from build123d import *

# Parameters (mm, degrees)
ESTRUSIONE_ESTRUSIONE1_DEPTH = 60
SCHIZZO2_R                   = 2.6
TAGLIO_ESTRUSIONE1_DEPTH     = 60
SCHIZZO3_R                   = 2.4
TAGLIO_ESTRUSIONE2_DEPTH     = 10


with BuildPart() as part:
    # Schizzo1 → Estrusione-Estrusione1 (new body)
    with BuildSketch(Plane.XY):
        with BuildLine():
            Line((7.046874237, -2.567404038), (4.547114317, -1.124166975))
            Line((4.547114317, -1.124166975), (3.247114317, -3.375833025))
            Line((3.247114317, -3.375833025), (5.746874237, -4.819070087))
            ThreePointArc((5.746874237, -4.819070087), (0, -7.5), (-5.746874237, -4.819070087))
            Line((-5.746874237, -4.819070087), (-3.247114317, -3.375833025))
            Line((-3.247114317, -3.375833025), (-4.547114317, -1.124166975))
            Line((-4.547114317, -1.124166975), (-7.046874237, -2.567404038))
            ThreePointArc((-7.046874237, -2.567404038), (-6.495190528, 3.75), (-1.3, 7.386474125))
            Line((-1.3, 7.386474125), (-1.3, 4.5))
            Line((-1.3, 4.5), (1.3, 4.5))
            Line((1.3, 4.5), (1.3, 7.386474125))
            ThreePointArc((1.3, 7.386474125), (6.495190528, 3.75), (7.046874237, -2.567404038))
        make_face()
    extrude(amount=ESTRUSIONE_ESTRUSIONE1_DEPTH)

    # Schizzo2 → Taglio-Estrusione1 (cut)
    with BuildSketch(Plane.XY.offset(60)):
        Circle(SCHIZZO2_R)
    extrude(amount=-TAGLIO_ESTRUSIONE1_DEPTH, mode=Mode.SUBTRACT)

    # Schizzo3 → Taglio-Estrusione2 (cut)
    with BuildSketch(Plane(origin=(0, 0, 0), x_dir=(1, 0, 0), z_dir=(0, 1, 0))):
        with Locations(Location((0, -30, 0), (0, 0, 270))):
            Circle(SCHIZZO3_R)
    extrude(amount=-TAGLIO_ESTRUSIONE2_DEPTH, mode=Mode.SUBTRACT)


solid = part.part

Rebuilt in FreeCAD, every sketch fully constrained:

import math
import FreeCAD as App
import Part
import Sketcher

V = App.Vector
Q = App.Units.Quantity

doc = App.newDocument("Part")
params = doc.addObject("Spreadsheet::Sheet", "Params")
for row, (alias, value) in enumerate([
    ("sketch1_radius", "7.5 mm"),
    ("sketch1_width", "2.6 mm"),
    ("sketch1_length", "2.6 mm"),
    ("pad1_length", "60 mm"),
    ("sketch2_diameter", "5.2 mm"),
    ("pocket1_length", "60 mm"),
    ("sketch3_diameter", "4.8 mm"),
    ("pocket2_length", "10 mm"),
], start=1):
    params.set(f"A{row}", alias)
    params.set(f"B{row}", "=" + value)
    params.setAlias(f"B{row}", alias)

body = doc.addObject("PartDesign::Body", "Body")

# Sketch on XY plane
sketch1 = doc.addObject("Sketcher::SketchObject", "Sketch")
body.addObject(sketch1)
sketch1.AttachmentSupport = (doc.XY_Plane, [""])
sketch1.MapMode = "FlatFace"
sketch1.addGeometry(Part.LineSegment(V(4.547114, -1.124167, 0), V(7.046874, -2.567404, 0)), False)
sketch1.addGeometry(Part.ArcOfCircle(Part.Circle(V(0, 0, 0), V(0, 0, 1), 7.5), math.radians(-20.018317), math.radians(80.018317)), False)
sketch1.addGeometry(Part.LineSegment(V(1.3, 7.386474, 0), V(1.3, 4.5, 0)), False)
sketch1.addGeometry(Part.LineSegment(V(1.3, 4.5, 0), V(-1.3, 4.5, 0)), False)
sketch1.addGeometry(Part.LineSegment(V(-1.3, 4.5, 0), V(-1.3, 7.386474, 0)), False)
sketch1.addGeometry(Part.ArcOfCircle(Part.Circle(V(0, 0, 0), V(0, 0, 1), 7.5), math.radians(99.981683), math.radians(200.018317)), False)
sketch1.addGeometry(Part.LineSegment(V(-7.046874, -2.567404, 0), V(-4.547114, -1.124167, 0)), False)
sketch1.addGeometry(Part.LineSegment(V(-4.547114, -1.124167, 0), V(-3.247114, -3.375833, 0)), False)
sketch1.addGeometry(Part.LineSegment(V(-3.247114, -3.375833, 0), V(-5.746874, -4.81907, 0)), False)
sketch1.addGeometry(Part.ArcOfCircle(Part.Circle(V(0, 0, 0), V(0, 0, 1), 7.5), math.radians(-140.018317), math.radians(-39.981683)), False)
sketch1.addGeometry(Part.LineSegment(V(5.746874, -4.81907, 0), V(3.247114, -3.375833, 0)), False)
sketch1.addGeometry(Part.LineSegment(V(3.247114, -3.375833, 0), V(4.547114, -1.124167, 0)), False)
sketch1.addConstraint(Sketcher.Constraint("Coincident", 0, 2, 1, 1))
sketch1.addConstraint(Sketcher.Constraint("Coincident", 1, 2, 2, 1))
sketch1.addConstraint(Sketcher.Constraint("Coincident", 2, 2, 3, 1))
sketch1.addConstraint(Sketcher.Constraint("Coincident", 3, 2, 4, 1))
sketch1.addConstraint(Sketcher.Constraint("Coincident", 4, 2, 5, 1))
sketch1.addConstraint(Sketcher.Constraint("Coincident", 5, 2, 6, 1))
sketch1.addConstraint(Sketcher.Constraint("Coincident", 6, 2, 7, 1))
sketch1.addConstraint(Sketcher.Constraint("Coincident", 7, 2, 8, 1))
sketch1.addConstraint(Sketcher.Constraint("Coincident", 8, 2, 9, 1))
sketch1.addConstraint(Sketcher.Constraint("Coincident", 9, 2, 10, 1))
sketch1.addConstraint(Sketcher.Constraint("Coincident", 10, 2, 11, 1))
sketch1.addConstraint(Sketcher.Constraint("Coincident", 11, 2, 0, 1))
sketch1.addConstraint(Sketcher.Constraint("Vertical", 2))
sketch1.addConstraint(Sketcher.Constraint("Horizontal", 3))
sketch1.addConstraint(Sketcher.Constraint("Vertical", 4))
sketch1.addConstraint(Sketcher.Constraint("Coincident", 1, 3, -1, 1))
sketch1.addConstraint(Sketcher.Constraint("Coincident", 5, 3, -1, 1))
sketch1.addConstraint(Sketcher.Constraint("Coincident", 9, 3, -1, 1))
sketch1.addConstraint(Sketcher.Constraint("Equal", 1, 5))
sketch1.addConstraint(Sketcher.Constraint("Equal", 5, 9))
sketch1.addConstraint(Sketcher.Constraint("Symmetric", 7, 2, 10, 2, -2))
sketch1.addConstraint(Sketcher.Constraint("Symmetric", 6, 2, 11, 2, -2))
sketch1.addConstraint(Sketcher.Constraint("Perpendicular", 6, 7))
sketch1.addConstraint(Sketcher.Constraint("Perpendicular", 7, 8))
sketch1.addConstraint(Sketcher.Constraint("Parallel", 0, 10))
sketch1.addConstraint(Sketcher.Constraint("Perpendicular", 10, 11))
sketch1.addConstraint(Sketcher.Constraint("Horizontal", 1, 2, 4, 2))
sketch1.addConstraint(Sketcher.Constraint("Equal", 6, 8))
sketch1.addConstraint(Sketcher.Constraint("Radius", 1, Q("7.5 mm")))
sketch1.addConstraint(Sketcher.Constraint("Angle", 0, Q("-30 deg")))
sketch1.addConstraint(Sketcher.Constraint("DistanceX", 3, 2, 3, 1, Q("2.6 mm")))
sketch1.addConstraint(Sketcher.Constraint("Distance", 7, Q("2.6 mm")))
sketch1.addConstraint(Sketcher.Constraint("DistanceY", -1, 1, 2, 2, Q("4.5 mm")))
sketch1.addConstraint(Sketcher.Constraint("DistanceX", 5, 2, 6, 2, Q("2.49976 mm")))
sketch1.setExpression("Constraints[28]", "Params.sketch1_radius")
sketch1.setExpression("Constraints[30]", "Params.sketch1_width")
sketch1.setExpression("Constraints[31]", "Params.sketch1_length")
pad1 = doc.addObject("PartDesign::Pad", "Pad")
body.addObject(pad1)
pad1.Profile = sketch1
pad1.setExpression("Length", "Params.pad1_length")

# Sketch on XY plane
sketch2 = doc.addObject("Sketcher::SketchObject", "Sketch001")
body.addObject(sketch2)
sketch2.AttachmentSupport = (doc.XY_Plane, [""])
sketch2.MapMode = "FlatFace"
sketch2.AttachmentOffset = App.Placement(V(0, 0, 60), App.Rotation())
sketch2.addGeometry(Part.Circle(V(0, 0, 0), V(0, 0, 1), 2.6), False)
sketch2.addConstraint(Sketcher.Constraint("Coincident", 0, 3, -1, 1))
sketch2.addConstraint(Sketcher.Constraint("Diameter", 0, Q("5.2 mm")))
sketch2.setExpression("Constraints[1]", "Params.sketch2_diameter")
pocket1 = doc.addObject("PartDesign::Pocket", "Pocket")
body.addObject(pocket1)
pocket1.Profile = sketch2
pocket1.setExpression("Length", "Params.pocket1_length")

# Sketch on XZ plane
sketch3 = doc.addObject("Sketcher::SketchObject", "Sketch002")
body.addObject(sketch3)
sketch3.AttachmentSupport = (doc.XZ_Plane, [""])
sketch3.MapMode = "FlatFace"
sketch3.addGeometry(Part.Circle(V(0, 30, 0), V(0, 0, 1), 2.4), False)
sketch3.addConstraint(Sketcher.Constraint("PointOnObject", 0, 3, -2))
sketch3.addConstraint(Sketcher.Constraint("Diameter", 0, Q("4.8 mm")))
sketch3.addConstraint(Sketcher.Constraint("DistanceY", -1, 1, 0, 3, Q("30 mm")))
sketch3.setExpression("Constraints[1]", "Params.sketch3_diameter")
pocket2 = doc.addObject("PartDesign::Pocket", "Pocket001")
body.addObject(pocket2)
pocket2.Profile = sketch3
pocket2.setExpression("Length", "Params.pocket2_length")
pocket2.Reversed = True

doc.recompute()
